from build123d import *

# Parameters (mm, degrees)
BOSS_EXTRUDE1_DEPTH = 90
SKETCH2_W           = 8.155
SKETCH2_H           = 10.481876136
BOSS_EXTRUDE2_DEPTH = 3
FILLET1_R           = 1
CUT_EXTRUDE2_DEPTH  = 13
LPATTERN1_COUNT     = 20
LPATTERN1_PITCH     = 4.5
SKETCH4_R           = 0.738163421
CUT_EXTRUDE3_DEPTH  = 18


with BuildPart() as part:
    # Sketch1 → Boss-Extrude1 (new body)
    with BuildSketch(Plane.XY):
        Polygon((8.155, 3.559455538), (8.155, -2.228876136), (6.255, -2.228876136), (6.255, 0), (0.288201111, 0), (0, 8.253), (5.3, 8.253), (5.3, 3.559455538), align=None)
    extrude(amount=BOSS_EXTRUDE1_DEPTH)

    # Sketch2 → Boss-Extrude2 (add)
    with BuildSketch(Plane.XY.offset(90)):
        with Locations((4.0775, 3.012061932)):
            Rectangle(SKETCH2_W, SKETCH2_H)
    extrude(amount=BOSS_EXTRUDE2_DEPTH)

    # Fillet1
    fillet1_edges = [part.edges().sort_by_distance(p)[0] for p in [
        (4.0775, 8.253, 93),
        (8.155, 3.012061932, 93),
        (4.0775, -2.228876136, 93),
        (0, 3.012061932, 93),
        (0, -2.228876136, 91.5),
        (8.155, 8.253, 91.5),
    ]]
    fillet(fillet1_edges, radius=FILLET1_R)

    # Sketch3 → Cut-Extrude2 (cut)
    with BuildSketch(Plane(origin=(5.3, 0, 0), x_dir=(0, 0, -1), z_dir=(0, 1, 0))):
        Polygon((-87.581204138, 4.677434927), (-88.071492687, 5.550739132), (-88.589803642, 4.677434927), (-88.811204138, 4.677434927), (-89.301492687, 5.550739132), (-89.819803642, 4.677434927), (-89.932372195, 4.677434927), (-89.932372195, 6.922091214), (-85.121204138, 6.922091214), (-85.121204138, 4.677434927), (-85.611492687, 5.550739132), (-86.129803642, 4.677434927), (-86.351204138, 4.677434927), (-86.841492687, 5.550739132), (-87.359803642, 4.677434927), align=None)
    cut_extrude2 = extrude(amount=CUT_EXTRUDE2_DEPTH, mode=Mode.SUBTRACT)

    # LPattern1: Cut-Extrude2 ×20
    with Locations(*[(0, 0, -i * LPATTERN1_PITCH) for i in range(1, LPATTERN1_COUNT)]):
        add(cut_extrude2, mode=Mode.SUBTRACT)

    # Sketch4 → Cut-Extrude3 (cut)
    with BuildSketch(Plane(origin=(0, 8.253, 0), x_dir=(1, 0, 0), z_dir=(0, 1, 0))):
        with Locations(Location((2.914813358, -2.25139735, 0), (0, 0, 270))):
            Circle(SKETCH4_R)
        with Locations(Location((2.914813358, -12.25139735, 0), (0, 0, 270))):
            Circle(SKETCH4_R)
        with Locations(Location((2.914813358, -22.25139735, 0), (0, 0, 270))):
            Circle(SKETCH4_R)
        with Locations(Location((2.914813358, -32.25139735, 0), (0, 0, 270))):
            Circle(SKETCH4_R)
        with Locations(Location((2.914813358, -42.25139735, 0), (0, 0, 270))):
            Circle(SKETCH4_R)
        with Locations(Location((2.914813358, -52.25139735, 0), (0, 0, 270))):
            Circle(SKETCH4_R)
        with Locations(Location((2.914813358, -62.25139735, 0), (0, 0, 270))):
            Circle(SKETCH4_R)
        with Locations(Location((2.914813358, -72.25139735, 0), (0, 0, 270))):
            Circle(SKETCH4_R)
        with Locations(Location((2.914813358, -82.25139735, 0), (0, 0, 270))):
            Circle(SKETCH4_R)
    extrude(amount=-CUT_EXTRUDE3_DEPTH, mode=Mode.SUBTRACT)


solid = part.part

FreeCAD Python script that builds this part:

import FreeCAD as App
import Part
import Sketcher
Q = App.Units.Quantity


def edges_at(feature, points):
    """Names of the edges that pass closest to the given points."""
    edges = feature.Shape.Edges
    near = lambda p: min(range(len(edges)), key=lambda i: edges[i].distToShape(Part.Vertex(*p))[0])
    return sorted({f"Edge{near(p) + 1}" for p in points})

doc = App.newDocument("Part")
body = doc.addObject("PartDesign::Body", "Body")

# Sketch on XY plane
sketch1 = body.newObject("Sketcher::SketchObject", "Sketch")
sketch1.AttachmentSupport = (doc.getObject("XY_Plane"), [""])
sketch1.MapMode = "FlatFace"
sketch1.addGeometry([
    Part.LineSegment(App.Vector(8.2, -2.2, 0), App.Vector(8.2, 3.6, 0)),  # 0
    Part.LineSegment(App.Vector(8.2, 3.6, 0), App.Vector(5.3, 3.6, 0)),  # 1
    Part.LineSegment(App.Vector(5.3, 3.6, 0), App.Vector(5.3, 8.3, 0)),  # 2
    Part.LineSegment(App.Vector(5.3, 8.3, 0), App.Vector(0, 8.3, 0)),  # 3
    Part.LineSegment(App.Vector(0, 8.3, 0), App.Vector(0.3, 0, 0)),  # 4
    Part.LineSegment(App.Vector(0.3, 0, 0), App.Vector(6.3, 0, 0)),  # 5
    Part.LineSegment(App.Vector(6.3, 0, 0), App.Vector(6.3, -2.2, 0)),  # 6
    Part.LineSegment(App.Vector(6.3, -2.2, 0), App.Vector(8.2, -2.2, 0)),  # 7
], False)
sketch1.addConstraint([
    Sketcher.Constraint("Coincident", 0, 2, 1, 1),
    Sketcher.Constraint("Coincident", 1, 2, 2, 1),
    Sketcher.Constraint("Coincident", 2, 2, 3, 1),
    Sketcher.Constraint("Coincident", 3, 2, 4, 1),
    Sketcher.Constraint("Coincident", 4, 2, 5, 1),
    Sketcher.Constraint("Coincident", 5, 2, 6, 1),
    Sketcher.Constraint("Coincident", 6, 2, 7, 1),
    Sketcher.Constraint("Coincident", 7, 2, 0, 1),
    Sketcher.Constraint("Vertical", 0),
    Sketcher.Constraint("Horizontal", 1),
    Sketcher.Constraint("Vertical", 2),
    Sketcher.Constraint("Horizontal", 3),
    Sketcher.Constraint("Horizontal", 5),
    Sketcher.Constraint("Vertical", 6),
    Sketcher.Constraint("Horizontal", 7),
    Sketcher.Constraint("PointOnObject", 3, 2, -2),
    Sketcher.Constraint("PointOnObject", 4, 2, -1),
    Sketcher.Constraint("Angle", 4, Q("-88 deg")),
    Sketcher.Constraint("DistanceX", 3, 2, 3, 1, Q("5.3 mm")),
    Sketcher.Constraint("DistanceX", 7, 1, 7, 2, Q("1.9 mm")),
    Sketcher.Constraint("DistanceX", 1, 2, 1, 1, Q("2.855 mm")),
    Sketcher.Constraint("DistanceX", 5, 1, 5, 2, Q("5.966799 mm")),
    Sketcher.Constraint("DistanceY", 0, 1, 0, 2, Q("5.788332 mm")),
    Sketcher.Constraint("DistanceY", 2, 1, 2, 2, Q("4.693544 mm")),
])
pad1 = body.newObject("PartDesign::Pad", "Pad")
pad1.Profile = sketch1
pad1.Length = 90

# Sketch on XY plane
sketch2 = body.newObject("Sketcher::SketchObject", "Sketch001")
sketch2.AttachmentSupport = (doc.getObject("XY_Plane"), [""])
sketch2.MapMode = "FlatFace"
sketch2.AttachmentOffset = App.Placement(App.Vector(0, 0, 90), App.Rotation())
sketch2.addGeometry([
    Part.LineSegment(App.Vector(0, 8, 0), App.Vector(0, -2, 0)),
    Part.LineSegment(App.Vector(0, -2, 0), App.Vector(8, -2, 0)),
    Part.LineSegment(App.Vector(8, -2, 0), App.Vector(8, 8, 0)),
    Part.LineSegment(App.Vector(8, 8, 0), App.Vector(0, 8, 0)),
], False)
sketch2.addConstraint([
    Sketcher.Constraint("Coincident", 0, 2, 1, 1),
    Sketcher.Constraint("Coincident", 1, 2, 2, 1),
    Sketcher.Constraint("Coincident", 2, 2, 3, 1),
    Sketcher.Constraint("Coincident", 3, 2, 0, 1),
    Sketcher.Constraint("Vertical", 0),
    Sketcher.Constraint("Horizontal", 1),
    Sketcher.Constraint("Vertical", 2),
    Sketcher.Constraint("Horizontal", 3),
    Sketcher.Constraint("PointOnObject", 0, 2, -2),
    Sketcher.Constraint("DistanceX", 1, 1, 1, 2, Q("8.155 mm")),
    Sketcher.Constraint("DistanceY", -1, 1, 2, 2, Q("8.253 mm")),
    Sketcher.Constraint("DistanceY", 0, 2, 0, 1, Q("10.481876 mm")),
])
pad2 = body.newObject("PartDesign::Pad", "Pad001")
pad2.Profile = sketch2
pad2.Length = 3
doc.recompute()

fillet = body.newObject("PartDesign::Fillet", "Fillet")
fillet.Base = (pad2, edges_at(pad2, [
    (4.077, 8.253, 93),
    (8.155, 3.012, 93),
    (4.077, -2.229, 93),
    (0, 3.012, 93),
    (0, -2.229, 91.5),
    (8.155, 8.253, 91.5),
]))
fillet.Radius = 1

# Sketch on XZ plane
sketch3 = body.newObject("Sketcher::SketchObject", "Sketch002")
sketch3.AttachmentSupport = (doc.getObject("XZ_Plane"), [""])
sketch3.MapMode = "FlatFace"
sketch3.addGeometry([
    Part.LineSegment(App.Vector(-0.25, 88.07, 0), App.Vector(0.62, 87.58, 0)),  # 0
    Part.LineSegment(App.Vector(0.62, 87.58, 0), App.Vector(0.62, 87.36, 0)),  # 1
    Part.LineSegment(App.Vector(0.62, 87.36, 0), App.Vector(-0.25, 86.84, 0)),  # 2
    Part.LineSegment(App.Vector(-0.25, 86.84, 0), App.Vector(0.62, 86.35, 0)),  # 3
    Part.LineSegment(App.Vector(0.62, 86.35, 0), App.Vector(0.62, 86.13, 0)),  # 4
    Part.LineSegment(App.Vector(0.62, 86.13, 0), App.Vector(-0.25, 85.61, 0)),  # 5
    Part.LineSegment(App.Vector(-0.25, 85.61, 0), App.Vector(0.62, 85.12, 0)),  # 6
    Part.LineSegment(App.Vector(0.62, 85.12, 0), App.Vector(-1.62, 85.12, 0)),  # 7
    Part.LineSegment(App.Vector(-1.62, 85.12, 0), App.Vector(-1.62, 89.93, 0)),  # 8
    Part.LineSegment(App.Vector(-1.62, 89.93, 0), App.Vector(0.62, 89.93, 0)),  # 9
    Part.LineSegment(App.Vector(0.62, 89.93, 0), App.Vector(0.62, 89.82, 0)),  # 10
    Part.LineSegment(App.Vector(0.62, 89.82, 0), App.Vector(-0.25, 89.3, 0)),  # 11
    Part.LineSegment(App.Vector(-0.25, 89.3, 0), App.Vector(0.62, 88.81, 0)),  # 12
    Part.LineSegment(App.Vector(0.62, 88.81, 0), App.Vector(0.62, 88.59, 0)),  # 13
    Part.LineSegment(App.Vector(0.62, 88.59, 0), App.Vector(-0.25, 88.07, 0)),  # 14
], False)
sketch3.addConstraint([
    Sketcher.Constraint("Coincident", 0, 2, 1, 1),
    Sketcher.Constraint("Coincident", 1, 2, 2, 1),
    Sketcher.Constraint("Coincident", 2, 2, 3, 1),
    Sketcher.Constraint("Coincident", 3, 2, 4, 1),
    Sketcher.Constraint("Coincident", 4, 2, 5, 1),
    Sketcher.Constraint("Coincident", 5, 2, 6, 1),
    Sketcher.Constraint("Coincident", 6, 2, 7, 1),
    Sketcher.Constraint("Coincident", 7, 2, 8, 1),
    Sketcher.Constraint("Coincident", 8, 2, 9, 1),
    Sketcher.Constraint("Coincident", 9, 2, 10, 1),
    Sketcher.Constraint("Coincident", 10, 2, 11, 1),
    Sketcher.Constraint("Coincident", 11, 2, 12, 1),
    Sketcher.Constraint("Coincident", 12, 2, 13, 1),
    Sketcher.Constraint("Coincident", 13, 2, 14, 1),
    Sketcher.Constraint("Coincident", 14, 2, 0, 1),
    Sketcher.Constraint("Vertical", 1),
    Sketcher.Constraint("Vertical", 4),
    Sketcher.Constraint("Horizontal", 7),
    Sketcher.Constraint("Vertical", 8),
    Sketcher.Constraint("Horizontal", 9),
    Sketcher.Constraint("Vertical", 10),
    Sketcher.Constraint("Vertical", 13),
    Sketcher.Constraint("Parallel", 0, 3),
    Sketcher.Constraint("Parallel", 2, 5),
    Sketcher.Constraint("Parallel", 3, 6),
    Sketcher.Constraint("Parallel", 5, 11),
    Sketcher.Constraint("Parallel", 6, 12),
    Sketcher.Constraint("Parallel", 11, 14),
    Sketcher.Constraint("Vertical", 1, 2, 3, 2),
    Sketcher.Constraint("Vertical", 2, 2, 5, 2),
    Sketcher.Constraint("Vertical", 4, 2, 6, 2),
    Sketcher.Constraint("Vertical", 6, 2, 9, 2),
    Sketcher.Constraint("Vertical", 5, 2, 11, 2),
    Sketcher.Constraint("Vertical", 10, 2, 12, 2),
    Sketcher.Constraint("Vertical", 11, 2, 14, 2),
    Sketcher.Constraint("Equal", 1, 4),
    Sketcher.Constraint("Equal", 4, 13),
    Sketcher.Constraint("DistanceY", 3, 2, 0, 2, Q("1.23 mm")),
    Sketcher.Constraint("DistanceY", 1, 2, 1, 1, Q("0.2214 mm")),
    Sketcher.Constraint("DistanceY", 8, 1, 8, 2, Q("4.811168 mm")),
    Sketcher.Constraint("Distance", 0, Q("1.00152 mm")),
    Sketcher.Constraint("DistanceX", 7, 2, 7, 1, Q("2.244656 mm")),
    Sketcher.Constraint("DistanceX", 2, 2, -1, 1, Q("0.250739 mm")),
    Sketcher.Constraint("DistanceX", 7, 2, -1, 1, Q("1.622091 mm")),
    Sketcher.Constraint("DistanceY", -1, 1, 0, 2, Q("87.581204 mm")),
])
pocket1 = body.newObject("PartDesign::Pocket", "Pocket")
pocket1.Profile = sketch3
pocket1.Length = 13
doc.recompute()

linearpattern = body.newObject("PartDesign::LinearPattern", "LinearPattern")
linearpattern.Originals = [pocket1]
linearpattern.Direction = (doc.getObject("Z_Axis"), [""])
linearpattern.Mode = "offset"
linearpattern.Offset = 4.5
linearpattern.Occurrences = 20
linearpattern.Reversed = True
body.Tip = linearpattern

# Sketch on XZ plane
sketch4 = body.newObject("Sketcher::SketchObject", "Sketch003")
sketch4.AttachmentSupport = (doc.getObject("XZ_Plane"), [""])
sketch4.MapMode = "FlatFace"
sketch4.AttachmentOffset = App.Placement(App.Vector(0, 0, -8.253), App.Rotation())
sketch4.addGeometry([
    Part.Circle(App.Vector(2.9, 2.3, 0), App.Vector(0, 0, 1), 0.7),  # 0
    Part.Circle(App.Vector(2.9, 12.3, 0), App.Vector(0, 0, 1), 0.7),  # 1
    Part.Circle(App.Vector(2.9, 22.3, 0), App.Vector(0, 0, 1), 0.7),  # 2
    Part.Circle(App.Vector(2.9, 32.3, 0), App.Vector(0, 0, 1), 0.7),  # 3
    Part.Circle(App.Vector(2.9, 42.3, 0), App.Vector(0, 0, 1), 0.7),  # 4
    Part.Circle(App.Vector(2.9, 52.3, 0), App.Vector(0, 0, 1), 0.7),  # 5
    Part.Circle(App.Vector(2.9, 62.3, 0), App.Vector(0, 0, 1), 0.7),  # 6
    Part.Circle(App.Vector(2.9, 72.3, 0), App.Vector(0, 0, 1), 0.7),  # 7
    Part.Circle(App.Vector(2.9, 82.3, 0), App.Vector(0, 0, 1), 0.7),  # 8
], False)
sketch4.addConstraint([
    Sketcher.Constraint("Equal", 0, 1),
    Sketcher.Constraint("Equal", 1, 2),
    Sketcher.Constraint("Equal", 2, 3),
    Sketcher.Constraint("Equal", 3, 4),
    Sketcher.Constraint("Equal", 4, 5),
    Sketcher.Constraint("Equal", 5, 6),
    Sketcher.Constraint("Equal", 6, 7),
    Sketcher.Constraint("Equal", 7, 8),
    Sketcher.Constraint("Vertical", 0, 3, 1, 3),
    Sketcher.Constraint("Vertical", 1, 3, 2, 3),
    Sketcher.Constraint("Vertical", 2, 3, 3, 3),
    Sketcher.Constraint("Vertical", 3, 3, 4, 3),
    Sketcher.Constraint("Vertical", 4, 3, 5, 3),
    Sketcher.Constraint("Vertical", 5, 3, 6, 3),
    Sketcher.Constraint("Vertical", 6, 3, 7, 3),
    Sketcher.Constraint("Vertical", 7, 3, 8, 3),
    Sketcher.Constraint("DistanceY", 0, 3, 1, 3, Q("10 mm")),
    Sketcher.Constraint("DistanceY", 1, 3, 2, 3, Q("10 mm")),
    Sketcher.Constraint("DistanceY", 2, 3, 3, 3, Q("10 mm")),
    Sketcher.Constraint("DistanceY", 3, 3, 4, 3, Q("10 mm")),
    Sketcher.Constraint("DistanceY", 4, 3, 5, 3, Q("10 mm")),
    Sketcher.Constraint("DistanceY", 5, 3, 6, 3, Q("10 mm")),
    Sketcher.Constraint("DistanceY", 6, 3, 7, 3, Q("10 mm")),
    Sketcher.Constraint("DistanceY", 7, 3, 8, 3, Q("10 mm")),
    Sketcher.Constraint("Diameter", 0, Q("1.476327 mm")),
    Sketcher.Constraint("DistanceX", -1, 1, 0, 3, Q("2.914813 mm")),
    Sketcher.Constraint("DistanceY", -1, 1, 0, 3, Q("2.251397 mm")),
])
pocket2 = body.newObject("PartDesign::Pocket", "Pocket001")
pocket2.Profile = sketch4
pocket2.Length = 18
pocket2.Reversed = True

doc.recompute()
